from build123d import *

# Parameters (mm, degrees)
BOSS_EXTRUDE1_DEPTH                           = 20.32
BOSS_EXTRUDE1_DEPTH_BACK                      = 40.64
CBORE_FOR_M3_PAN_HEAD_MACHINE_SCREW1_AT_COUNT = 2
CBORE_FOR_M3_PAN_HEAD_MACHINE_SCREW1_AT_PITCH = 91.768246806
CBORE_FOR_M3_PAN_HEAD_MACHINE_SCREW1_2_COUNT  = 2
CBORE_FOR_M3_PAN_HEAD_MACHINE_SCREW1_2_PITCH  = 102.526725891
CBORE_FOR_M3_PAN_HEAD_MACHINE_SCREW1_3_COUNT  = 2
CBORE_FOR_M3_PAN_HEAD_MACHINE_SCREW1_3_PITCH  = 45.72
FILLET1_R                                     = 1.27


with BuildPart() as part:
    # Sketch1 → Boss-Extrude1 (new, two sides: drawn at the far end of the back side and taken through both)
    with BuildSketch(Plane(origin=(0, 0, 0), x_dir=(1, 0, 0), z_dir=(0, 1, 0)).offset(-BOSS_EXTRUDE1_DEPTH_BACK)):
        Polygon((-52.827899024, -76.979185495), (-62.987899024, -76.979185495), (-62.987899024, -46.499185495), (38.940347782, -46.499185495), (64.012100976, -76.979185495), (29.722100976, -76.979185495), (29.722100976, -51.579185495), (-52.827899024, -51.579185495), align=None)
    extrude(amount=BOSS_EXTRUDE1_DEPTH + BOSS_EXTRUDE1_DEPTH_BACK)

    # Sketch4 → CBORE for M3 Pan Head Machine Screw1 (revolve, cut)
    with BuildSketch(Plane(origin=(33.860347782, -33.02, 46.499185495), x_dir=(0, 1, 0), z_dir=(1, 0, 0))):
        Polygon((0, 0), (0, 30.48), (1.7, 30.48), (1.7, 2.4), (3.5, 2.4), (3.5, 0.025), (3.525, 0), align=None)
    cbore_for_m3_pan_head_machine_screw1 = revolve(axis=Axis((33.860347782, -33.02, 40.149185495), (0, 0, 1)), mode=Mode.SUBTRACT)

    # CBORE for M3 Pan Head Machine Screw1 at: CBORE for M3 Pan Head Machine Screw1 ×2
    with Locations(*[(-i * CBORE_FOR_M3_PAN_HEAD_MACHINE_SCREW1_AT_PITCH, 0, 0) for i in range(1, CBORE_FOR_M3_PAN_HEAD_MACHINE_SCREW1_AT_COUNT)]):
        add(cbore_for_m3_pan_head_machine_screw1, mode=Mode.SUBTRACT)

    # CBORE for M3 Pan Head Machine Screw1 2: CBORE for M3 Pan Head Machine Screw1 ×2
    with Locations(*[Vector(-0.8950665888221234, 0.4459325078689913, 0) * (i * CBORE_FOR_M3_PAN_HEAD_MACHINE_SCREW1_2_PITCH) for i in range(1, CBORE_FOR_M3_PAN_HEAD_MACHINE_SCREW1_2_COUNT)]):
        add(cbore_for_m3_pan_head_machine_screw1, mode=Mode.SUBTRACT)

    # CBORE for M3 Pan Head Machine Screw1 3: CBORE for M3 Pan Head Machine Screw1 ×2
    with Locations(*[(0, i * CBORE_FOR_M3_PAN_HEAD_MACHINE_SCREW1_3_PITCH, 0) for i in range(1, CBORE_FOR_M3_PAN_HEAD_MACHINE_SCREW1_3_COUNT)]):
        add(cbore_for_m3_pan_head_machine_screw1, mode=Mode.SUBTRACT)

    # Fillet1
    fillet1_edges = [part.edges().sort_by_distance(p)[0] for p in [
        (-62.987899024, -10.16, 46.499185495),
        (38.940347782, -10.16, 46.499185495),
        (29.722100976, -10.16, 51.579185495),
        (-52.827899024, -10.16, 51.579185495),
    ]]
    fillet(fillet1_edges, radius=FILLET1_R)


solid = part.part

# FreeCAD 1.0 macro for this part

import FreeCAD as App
import Part
import Sketcher
Q = App.Units.Quantity


def edges_at(feature, points):
    """Names of the edges that pass closest to the given points."""
    edges = feature.Shape.Edges
    near = lambda p: min(range(len(edges)), key=lambda i: edges[i].distToShape(Part.Vertex(*p))[0])
    return sorted({f"Edge{near(p) + 1}" for p in points})

doc = App.newDocument("Part")
body = doc.addObject("PartDesign::Body", "Body")

# Sketch on XZ plane
sketch1 = doc.addObject("Sketcher::SketchObject", "Sketch")
body.addObject(sketch1)
sketch1.AttachmentSupport = (doc.XZ_Plane, [""])
sketch1.MapMode = "FlatFace"
sketch1.addGeometry(Part.LineSegment(App.Vector(-63, 77, 0), App.Vector(-53, 77, 0)), False)
sketch1.addGeometry(Part.LineSegment(App.Vector(-53, 77, 0), App.Vector(-53, 52, 0)), False)
sketch1.addGeometry(Part.LineSegment(App.Vector(-53, 52, 0), App.Vector(30, 52, 0)), False)
sketch1.addGeometry(Part.LineSegment(App.Vector(30, 52, 0), App.Vector(30, 77, 0)), False)
sketch1.addGeometry(Part.LineSegment(App.Vector(30, 77, 0), App.Vector(64, 77, 0)), False)
sketch1.addGeometry(Part.LineSegment(App.Vector(64, 77, 0), App.Vector(39, 46, 0)), False)
sketch1.addGeometry(Part.LineSegment(App.Vector(39, 46, 0), App.Vector(-63, 46, 0)), False)
sketch1.addGeometry(Part.LineSegment(App.Vector(-63, 46, 0), App.Vector(-63, 77, 0)), False)
sketch1.addConstraint(Sketcher.Constraint("Coincident", 0, 2, 1, 1))
sketch1.addConstraint(Sketcher.Constraint("Coincident", 1, 2, 2, 1))
sketch1.addConstraint(Sketcher.Constraint("Coincident", 2, 2, 3, 1))
sketch1.addConstraint(Sketcher.Constraint("Coincident", 3, 2, 4, 1))
sketch1.addConstraint(Sketcher.Constraint("Coincident", 4, 2, 5, 1))
sketch1.addConstraint(Sketcher.Constraint("Coincident", 5, 2, 6, 1))
sketch1.addConstraint(Sketcher.Constraint("Coincident", 6, 2, 7, 1))
sketch1.addConstraint(Sketcher.Constraint("Coincident", 7, 2, 0, 1))
sketch1.addConstraint(Sketcher.Constraint("Horizontal", 0))
sketch1.addConstraint(Sketcher.Constraint("Vertical", 1))
sketch1.addConstraint(Sketcher.Constraint("Horizontal", 2))
sketch1.addConstraint(Sketcher.Constraint("Vertical", 3))
sketch1.addConstraint(Sketcher.Constraint("Horizontal", 4))
sketch1.addConstraint(Sketcher.Constraint("Horizontal", 6))
sketch1.addConstraint(Sketcher.Constraint("Vertical", 7))
sketch1.addConstraint(Sketcher.Constraint("Horizontal", 0, 2, 3, 2))
sketch1.addConstraint(Sketcher.Constraint("DistanceY", 1, 2, 1, 1, Q("1 in")))
sketch1.addConstraint(Sketcher.Constraint("DistanceX", 0, 1, 0, 2, Q("0.4 in")))
sketch1.addConstraint(Sketcher.Constraint("DistanceY", 7, 1, 7, 2, Q("1.2 in")))
sketch1.addConstraint(Sketcher.Constraint("DistanceX", 2, 1, 2, 2, Q("3.25 in")))
sketch1.addConstraint(Sketcher.Constraint("DistanceX", 4, 1, 4, 2, Q("1.35 in")))
sketch1.addConstraint(Sketcher.Constraint("DistanceX", 0, 2, -1, 1, Q("52.827899 mm")))
sketch1.addConstraint(Sketcher.Constraint("DistanceX", 6, 2, 6, 1, Q("101.928247 mm")))
sketch1.addConstraint(Sketcher.Constraint("DistanceY", -1, 1, 0, 2, Q("76.979185 mm")))
pad1 = doc.addObject("PartDesign::Pad", "Pad")
body.addObject(pad1)
pad1.Profile = sketch1
pad1.Type = "TwoLengths"
pad1.Length = Q("0.8 in")
pad1.Length2 = Q("1.6 in")
pad1.Reversed = True

# Sketch on YZ plane
sketch2 = doc.addObject("Sketcher::SketchObject", "Sketch001")
body.addObject(sketch2)
sketch2.AttachmentSupport = (doc.YZ_Plane, [""])
sketch2.MapMode = "FlatFace"
sketch2.AttachmentOffset = App.Placement(App.Vector(0, 0, 33.860348), App.Rotation())
sketch2.addGeometry(Part.LineSegment(App.Vector(-33.02, 76.979, 0), App.Vector(-33.02, 46.499, 0)), False)
sketch2.addGeometry(Part.LineSegment(App.Vector(-33.02, 46.499, 0), App.Vector(-29.495, 46.499, 0)), False)
sketch2.addGeometry(Part.LineSegment(App.Vector(-29.495, 46.499, 0), App.Vector(-29.52, 46.524, 0)), False)
sketch2.addGeometry(Part.LineSegment(App.Vector(-29.52, 46.524, 0), App.Vector(-29.52, 48.899, 0)), False)
sketch2.addGeometry(Part.LineSegment(App.Vector(-29.52, 48.899, 0), App.Vector(-31.32, 48.899, 0)), False)
sketch2.addGeometry(Part.LineSegment(App.Vector(-31.32, 48.899, 0), App.Vector(-31.32, 76.979, 0)), False)
sketch2.addGeometry(Part.LineSegment(App.Vector(-31.32, 76.979, 0), App.Vector(-33.02, 76.979, 0)), False)
sketch2.addGeometry(Part.LineSegment(App.Vector(-33.02, 46.499, 0), App.Vector(-33.02, 76.979, 0)), True)  # axis
sketch2.addConstraint(Sketcher.Constraint("Coincident", 0, 2, 1, 1))
sketch2.addConstraint(Sketcher.Constraint("Coincident", 1, 2, 2, 1))
sketch2.addConstraint(Sketcher.Constraint("Coincident", 2, 2, 3, 1))
sketch2.addConstraint(Sketcher.Constraint("Coincident", 3, 2, 4, 1))
sketch2.addConstraint(Sketcher.Constraint("Coincident", 4, 2, 5, 1))
sketch2.addConstraint(Sketcher.Constraint("Coincident", 5, 2, 6, 1))
sketch2.addConstraint(Sketcher.Constraint("Coincident", 6, 2, 0, 1))
sketch2.addConstraint(Sketcher.Constraint("Vertical", 0))
sketch2.addConstraint(Sketcher.Constraint("Horizontal", 1))
sketch2.addConstraint(Sketcher.Constraint("Vertical", 3))
sketch2.addConstraint(Sketcher.Constraint("Horizontal", 4))
sketch2.addConstraint(Sketcher.Constraint("Vertical", 5))
sketch2.addConstraint(Sketcher.Constraint("Horizontal", 6))
sketch2.addConstraint(Sketcher.Constraint("Vertical", 7))
sketch2.addConstraint(Sketcher.Constraint("Coincident", 7, 1, 0, 2))
sketch2.addConstraint(Sketcher.Constraint("Horizontal", 5, 2, 7, 2))
sketch2.addConstraint(Sketcher.Constraint("DistanceY", 0, 2, 0, 1, Q("1.2 in")))
sketch2.addConstraint(Sketcher.Constraint("Angle", 2, Q("135 deg")))
sketch2.addConstraint(Sketcher.Constraint("DistanceX", 0, 2, -1, 1, Q("1.3 in")))
sketch2.addConstraint(Sketcher.Constraint("DistanceX", 1, 1, 1, 2, Q("3.525 mm")))
sketch2.addConstraint(Sketcher.Constraint("DistanceX", 4, 2, 4, 1, Q("1.8 mm")))
sketch2.addConstraint(Sketcher.Constraint("DistanceX", 6, 2, 6, 1, Q("1.7 mm")))
sketch2.addConstraint(Sketcher.Constraint("DistanceY", 3, 1, 3, 2, Q("2.375 mm")))
sketch2.addConstraint(Sketcher.Constraint("DistanceY", -1, 1, 0, 2, Q("46.499185 mm")))
groove = doc.addObject("PartDesign::Groove", "Groove")
body.addObject(groove)
groove.Profile = sketch2
groove.ReferenceAxis = (sketch2, ["Axis0"])
groove.Angle = 360
doc.recompute()

linearpattern = doc.addObject("PartDesign::LinearPattern", "LinearPattern")
body.addObject(linearpattern)
linearpattern.Originals = [groove]
linearpattern.Direction = (doc.X_Axis, [""])
linearpattern.Mode = "offset"
linearpattern.Offset = 91.768247
linearpattern.Occurrences = 2
linearpattern.Reversed = True
body.Tip = linearpattern
doc.recompute()

datumline = doc.addObject("PartDesign::Line", "DatumLine")
body.addObject(datumline)
datumline.Placement = App.Placement(App.Vector(0, 0, 0), App.Rotation(App.Vector(0, 0, 1), App.Vector(-0.895066589, 0.445932508, 0)))
linearpattern2 = doc.addObject("PartDesign::LinearPattern", "LinearPattern001")
body.addObject(linearpattern2)
linearpattern2.Originals = [groove]
linearpattern2.Direction = (datumline, [""])
linearpattern2.Mode = "offset"
linearpattern2.Offset = 102.526726
linearpattern2.Occurrences = 2
body.Tip = linearpattern2
doc.recompute()

linearpattern3 = doc.addObject("PartDesign::LinearPattern", "LinearPattern002")
body.addObject(linearpattern3)
linearpattern3.Originals = [groove]
linearpattern3.Direction = (doc.Y_Axis, [""])
linearpattern3.Mode = "offset"
linearpattern3.Offset = Q("1.8 in")
linearpattern3.Occurrences = 2
body.Tip = linearpattern3
doc.recompute()

fillet = doc.addObject("PartDesign::Fillet", "Fillet")
body.addObject(fillet)
fillet.Base = (linearpattern3, edges_at(linearpattern3, [
    (-62.988, -10.16, 46.499),
    (38.94, -10.16, 46.499),
    (29.722, -10.16, 51.579),
    (-52.828, -10.16, 51.579),
]))
fillet.Radius = Q("0.05 in")

doc.recompute()
